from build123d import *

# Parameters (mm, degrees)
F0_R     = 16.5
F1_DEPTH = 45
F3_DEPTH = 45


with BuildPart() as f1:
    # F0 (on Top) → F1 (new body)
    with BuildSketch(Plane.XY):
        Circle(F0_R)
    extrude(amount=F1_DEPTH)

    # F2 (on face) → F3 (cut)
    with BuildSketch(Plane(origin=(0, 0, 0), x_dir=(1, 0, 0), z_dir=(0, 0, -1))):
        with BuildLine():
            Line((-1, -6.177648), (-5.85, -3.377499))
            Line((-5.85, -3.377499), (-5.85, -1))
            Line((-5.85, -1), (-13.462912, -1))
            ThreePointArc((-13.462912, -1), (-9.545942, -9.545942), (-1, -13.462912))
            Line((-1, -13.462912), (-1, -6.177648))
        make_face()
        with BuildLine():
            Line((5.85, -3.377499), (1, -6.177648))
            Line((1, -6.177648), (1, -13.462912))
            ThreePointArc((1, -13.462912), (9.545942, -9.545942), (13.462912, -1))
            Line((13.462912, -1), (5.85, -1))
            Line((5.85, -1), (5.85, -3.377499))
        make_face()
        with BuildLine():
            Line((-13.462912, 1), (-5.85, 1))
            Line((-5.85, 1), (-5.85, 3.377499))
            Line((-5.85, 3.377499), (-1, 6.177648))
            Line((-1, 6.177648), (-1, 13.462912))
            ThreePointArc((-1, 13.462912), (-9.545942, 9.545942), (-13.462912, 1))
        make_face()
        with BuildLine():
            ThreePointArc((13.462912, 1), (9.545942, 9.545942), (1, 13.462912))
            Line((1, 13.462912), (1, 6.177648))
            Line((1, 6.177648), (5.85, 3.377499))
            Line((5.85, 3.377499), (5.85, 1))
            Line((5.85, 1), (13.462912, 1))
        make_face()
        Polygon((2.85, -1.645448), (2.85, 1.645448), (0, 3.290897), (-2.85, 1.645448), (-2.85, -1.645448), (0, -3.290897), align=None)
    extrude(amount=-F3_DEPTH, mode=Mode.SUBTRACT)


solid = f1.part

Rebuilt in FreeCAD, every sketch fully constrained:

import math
import FreeCAD as App
import Part
import Sketcher

V = App.Vector
Q = App.Units.Quantity


def add_polygon(sketch, points):
    """Adds a closed chain of lines whose ends are joined by coincident constraints."""
    first, n = sketch.GeometryCount, len(points)
    for a, b in zip(points, points[1:] + points[:1]):
        sketch.addGeometry(Part.LineSegment(App.Vector(*a, 0), App.Vector(*b, 0)), False)
    for i in range(n):
        sketch.addConstraint(Sketcher.Constraint("Coincident", first + i, 2, first + (i + 1) % n, 1))

doc = App.newDocument("Part")
params = doc.addObject("Spreadsheet::Sheet", "Params")
for row, (alias, value) in enumerate([
    ("sketch1_diameter", "33 mm"),
    ("pad1_length", "45 mm"),
    ("pocket1_length", "45 mm"),
], start=1):
    params.set(f"A{row}", alias)
    params.set(f"B{row}", "=" + value)
    params.setAlias(f"B{row}", alias)

body = doc.addObject("PartDesign::Body", "Body")

sketch1 = body.newObject("Sketcher::SketchObject", "Sketch")
sketch1.AttachmentSupport = (doc.getObject("XY_Plane"), [""])
sketch1.MapMode = "FlatFace"
sketch1.addGeometry(Part.Circle(V(0, 0, 0), V(0, 0, 1), 16.5), False)
sketch1.addConstraint(Sketcher.Constraint("Coincident", 0, 3, -1, 1))
sketch1.addConstraint(Sketcher.Constraint("Diameter", 0, 33.0))
sketch1.setExpression("Constraints[1]", "Params.sketch1_diameter")
pad1 = body.newObject("PartDesign::Pad", "Pad")
pad1.Profile = sketch1
pad1.setExpression("Length", "Params.pad1_length")

sketch2 = body.newObject("Sketcher::SketchObject", "Sketch001")
sketch2.AttachmentSupport = (doc.getObject("XY_Plane"), [""])
sketch2.MapMode = "FlatFace"
sketch2.addGeometry(Part.LineSegment(V(-1, 6.177648, 0), V(-5.85, 3.377499, 0)), False)
sketch2.addGeometry(Part.LineSegment(V(-5.85, 3.377499, 0), V(-5.85, 1, 0)), False)
sketch2.addGeometry(Part.LineSegment(V(-5.85, 1, 0), V(-13.462912, 1, 0)), False)
sketch2.addGeometry(Part.ArcOfCircle(Part.Circle(V(-0.000002, 0.000002, 0), V(0, 0, 1), 13.499998), math.radians(94.248015), math.radians(175.751985)), False)
sketch2.addGeometry(Part.LineSegment(V(-1, 13.462912, 0), V(-1, 6.177648, 0)), False)
sketch2.addGeometry(Part.LineSegment(V(5.85, 3.377499, 0), V(1, 6.177648, 0)), False)
sketch2.addGeometry(Part.LineSegment(V(1, 6.177648, 0), V(1, 13.462912, 0)), False)
sketch2.addGeometry(Part.ArcOfCircle(Part.Circle(V(0.000002, 0.000002, 0), V(0, 0, 1), 13.499998), math.radians(4.248015), math.radians(85.751985)), False)
sketch2.addGeometry(Part.LineSegment(V(13.462912, 1, 0), V(5.85, 1, 0)), False)
sketch2.addGeometry(Part.LineSegment(V(5.85, 1, 0), V(5.85, 3.377499, 0)), False)
sketch2.addGeometry(Part.LineSegment(V(-13.462912, -1, 0), V(-5.85, -1, 0)), False)
sketch2.addGeometry(Part.LineSegment(V(-5.85, -1, 0), V(-5.85, -3.377499, 0)), False)
sketch2.addGeometry(Part.LineSegment(V(-5.85, -3.377499, 0), V(-1, -6.177648, 0)), False)
sketch2.addGeometry(Part.LineSegment(V(-1, -6.177648, 0), V(-1, -13.462912, 0)), False)
sketch2.addGeometry(Part.ArcOfCircle(Part.Circle(V(-0.000002, -0.000002, 0), V(0, 0, 1), 13.499998), math.radians(-175.751985), math.radians(-94.248015)), False)
sketch2.addGeometry(Part.ArcOfCircle(Part.Circle(V(0.000002, -0.000002, 0), V(0, 0, 1), 13.499998), math.radians(-85.751985), math.radians(-4.248015)), False)
sketch2.addGeometry(Part.LineSegment(V(1, -13.462912, 0), V(1, -6.177648, 0)), False)
sketch2.addGeometry(Part.LineSegment(V(1, -6.177648, 0), V(5.85, -3.377499, 0)), False)
sketch2.addGeometry(Part.LineSegment(V(5.85, -3.377499, 0), V(5.85, -1, 0)), False)
sketch2.addGeometry(Part.LineSegment(V(5.85, -1, 0), V(13.462912, -1, 0)), False)
add_polygon(sketch2, [(2.85, 1.645448), (2.85, -1.645448), (0, -3.290897), (-2.85, -1.645448), (-2.85, 1.645448), (0, 3.290897)])
sketch2.addConstraint(Sketcher.Constraint("Coincident", 0, 2, 1, 1))
sketch2.addConstraint(Sketcher.Constraint("Coincident", 1, 2, 2, 1))
sketch2.addConstraint(Sketcher.Constraint("Coincident", 2, 2, 3, 2))
sketch2.addConstraint(Sketcher.Constraint("Coincident", 3, 1, 4, 1))
sketch2.addConstraint(Sketcher.Constraint("Coincident", 4, 2, 0, 1))
sketch2.addConstraint(Sketcher.Constraint("Coincident", 5, 2, 6, 1))
sketch2.addConstraint(Sketcher.Constraint("Coincident", 6, 2, 7, 2))
sketch2.addConstraint(Sketcher.Constraint("Coincident", 7, 1, 8, 1))
sketch2.addConstraint(Sketcher.Constraint("Coincident", 8, 2, 9, 1))
sketch2.addConstraint(Sketcher.Constraint("Coincident", 9, 2, 5, 1))
sketch2.addConstraint(Sketcher.Constraint("Coincident", 10, 2, 11, 1))
sketch2.addConstraint(Sketcher.Constraint("Coincident", 11, 2, 12, 1))
sketch2.addConstraint(Sketcher.Constraint("Coincident", 12, 2, 13, 1))
sketch2.addConstraint(Sketcher.Constraint("Coincident", 13, 2, 14, 2))
sketch2.addConstraint(Sketcher.Constraint("Coincident", 14, 1, 10, 1))
sketch2.addConstraint(Sketcher.Constraint("Coincident", 15, 1, 16, 1))
sketch2.addConstraint(Sketcher.Constraint("Coincident", 16, 2, 17, 1))
sketch2.addConstraint(Sketcher.Constraint("Coincident", 17, 2, 18, 1))
sketch2.addConstraint(Sketcher.Constraint("Coincident", 18, 2, 19, 1))
sketch2.addConstraint(Sketcher.Constraint("Coincident", 19, 2, 15, 2))
sketch2.addConstraint(Sketcher.Constraint("Vertical", 1))
sketch2.addConstraint(Sketcher.Constraint("Horizontal", 2))
sketch2.addConstraint(Sketcher.Constraint("Vertical", 4))
sketch2.addConstraint(Sketcher.Constraint("Vertical", 6))
sketch2.addConstraint(Sketcher.Constraint("Horizontal", 8))
sketch2.addConstraint(Sketcher.Constraint("Vertical", 9))
sketch2.addConstraint(Sketcher.Constraint("Horizontal", 10))
sketch2.addConstraint(Sketcher.Constraint("Vertical", 11))
sketch2.addConstraint(Sketcher.Constraint("Vertical", 13))
sketch2.addConstraint(Sketcher.Constraint("Vertical", 16))
sketch2.addConstraint(Sketcher.Constraint("Vertical", 18))
sketch2.addConstraint(Sketcher.Constraint("Horizontal", 19))
sketch2.addConstraint(Sketcher.Constraint("Vertical", 20))
sketch2.addConstraint(Sketcher.Constraint("Vertical", 23))
sketch2.addConstraint(Sketcher.Constraint("Coincident", 3, 3, -1, 1))
sketch2.addConstraint(Sketcher.Constraint("Coincident", 7, 3, -1, 1))
sketch2.addConstraint(Sketcher.Constraint("Coincident", 14, 3, -1, 1))
sketch2.addConstraint(Sketcher.Constraint("Coincident", 15, 3, -1, 1))
sketch2.addConstraint(Sketcher.Constraint("Equal", 3, 7))
sketch2.addConstraint(Sketcher.Constraint("Equal", 7, 14))
sketch2.addConstraint(Sketcher.Constraint("Equal", 14, 15))
sketch2.addConstraint(Sketcher.Constraint("Symmetric", 8, 2, 10, 2, -1, 1))
sketch2.addConstraint(Sketcher.Constraint("Symmetric", 5, 2, 12, 2, -1, 1))
sketch2.addConstraint(Sketcher.Constraint("Symmetric", 4, 2, 16, 2, -1, 1))
sketch2.addConstraint(Sketcher.Constraint("Symmetric", 0, 2, 17, 2, -1, 1))
sketch2.addConstraint(Sketcher.Constraint("Symmetric", 20, 2, 23, 2, -1, 1))
sketch2.addConstraint(Sketcher.Constraint("Symmetric", 21, 2, 24, 2, -1, 1))
sketch2.addConstraint(Sketcher.Constraint("Symmetric", 4, 2, 5, 2, -2))
sketch2.addConstraint(Sketcher.Constraint("Symmetric", 1, 2, 8, 2, -2))
sketch2.addConstraint(Sketcher.Constraint("PointOnObject", 21, 2, -2))
sketch2.addConstraint(Sketcher.Constraint("Parallel", 5, 12))
sketch2.addConstraint(Sketcher.Constraint("Parallel", 17, 21))
sketch2.addConstraint(Sketcher.Constraint("Parallel", 12, 22))
sketch2.addConstraint(Sketcher.Constraint("Parallel", 22, 25))
sketch2.addConstraint(Sketcher.Constraint("Horizontal", 0, 2, 9, 2))
sketch2.addConstraint(Sketcher.Constraint("Horizontal", 14, 1, 18, 2))
sketch2.addConstraint(Sketcher.Constraint("Angle", 0, Q("-149.999998 deg")))
sketch2.addConstraint(Sketcher.Constraint("DistanceY", -1, 1, 1, 2, 1.0))
sketch2.addConstraint(Sketcher.Constraint("DistanceX", 3, 1, -1, 1, 1.0))
sketch2.addConstraint(Sketcher.Constraint("DistanceX", 20, 2, 18, 2, 3.0))
sketch2.addConstraint(Sketcher.Constraint("DistanceX", 0, 2, -1, 1, 5.85))
sketch2.addConstraint(Sketcher.Constraint("DistanceY", 1, 2, 1, 1, 2.377499))
sketch2.addConstraint(Sketcher.Constraint("Radius", 3, 13.499998))
sketch2.addConstraint(Sketcher.Constraint("DistanceY", 20, 2, 20, 1, 3.290896))
pocket1 = body.newObject("PartDesign::Pocket", "Pocket")
pocket1.Profile = sketch2
pocket1.setExpression("Length", "Params.pocket1_length")
pocket1.Reversed = True

doc.recompute()
